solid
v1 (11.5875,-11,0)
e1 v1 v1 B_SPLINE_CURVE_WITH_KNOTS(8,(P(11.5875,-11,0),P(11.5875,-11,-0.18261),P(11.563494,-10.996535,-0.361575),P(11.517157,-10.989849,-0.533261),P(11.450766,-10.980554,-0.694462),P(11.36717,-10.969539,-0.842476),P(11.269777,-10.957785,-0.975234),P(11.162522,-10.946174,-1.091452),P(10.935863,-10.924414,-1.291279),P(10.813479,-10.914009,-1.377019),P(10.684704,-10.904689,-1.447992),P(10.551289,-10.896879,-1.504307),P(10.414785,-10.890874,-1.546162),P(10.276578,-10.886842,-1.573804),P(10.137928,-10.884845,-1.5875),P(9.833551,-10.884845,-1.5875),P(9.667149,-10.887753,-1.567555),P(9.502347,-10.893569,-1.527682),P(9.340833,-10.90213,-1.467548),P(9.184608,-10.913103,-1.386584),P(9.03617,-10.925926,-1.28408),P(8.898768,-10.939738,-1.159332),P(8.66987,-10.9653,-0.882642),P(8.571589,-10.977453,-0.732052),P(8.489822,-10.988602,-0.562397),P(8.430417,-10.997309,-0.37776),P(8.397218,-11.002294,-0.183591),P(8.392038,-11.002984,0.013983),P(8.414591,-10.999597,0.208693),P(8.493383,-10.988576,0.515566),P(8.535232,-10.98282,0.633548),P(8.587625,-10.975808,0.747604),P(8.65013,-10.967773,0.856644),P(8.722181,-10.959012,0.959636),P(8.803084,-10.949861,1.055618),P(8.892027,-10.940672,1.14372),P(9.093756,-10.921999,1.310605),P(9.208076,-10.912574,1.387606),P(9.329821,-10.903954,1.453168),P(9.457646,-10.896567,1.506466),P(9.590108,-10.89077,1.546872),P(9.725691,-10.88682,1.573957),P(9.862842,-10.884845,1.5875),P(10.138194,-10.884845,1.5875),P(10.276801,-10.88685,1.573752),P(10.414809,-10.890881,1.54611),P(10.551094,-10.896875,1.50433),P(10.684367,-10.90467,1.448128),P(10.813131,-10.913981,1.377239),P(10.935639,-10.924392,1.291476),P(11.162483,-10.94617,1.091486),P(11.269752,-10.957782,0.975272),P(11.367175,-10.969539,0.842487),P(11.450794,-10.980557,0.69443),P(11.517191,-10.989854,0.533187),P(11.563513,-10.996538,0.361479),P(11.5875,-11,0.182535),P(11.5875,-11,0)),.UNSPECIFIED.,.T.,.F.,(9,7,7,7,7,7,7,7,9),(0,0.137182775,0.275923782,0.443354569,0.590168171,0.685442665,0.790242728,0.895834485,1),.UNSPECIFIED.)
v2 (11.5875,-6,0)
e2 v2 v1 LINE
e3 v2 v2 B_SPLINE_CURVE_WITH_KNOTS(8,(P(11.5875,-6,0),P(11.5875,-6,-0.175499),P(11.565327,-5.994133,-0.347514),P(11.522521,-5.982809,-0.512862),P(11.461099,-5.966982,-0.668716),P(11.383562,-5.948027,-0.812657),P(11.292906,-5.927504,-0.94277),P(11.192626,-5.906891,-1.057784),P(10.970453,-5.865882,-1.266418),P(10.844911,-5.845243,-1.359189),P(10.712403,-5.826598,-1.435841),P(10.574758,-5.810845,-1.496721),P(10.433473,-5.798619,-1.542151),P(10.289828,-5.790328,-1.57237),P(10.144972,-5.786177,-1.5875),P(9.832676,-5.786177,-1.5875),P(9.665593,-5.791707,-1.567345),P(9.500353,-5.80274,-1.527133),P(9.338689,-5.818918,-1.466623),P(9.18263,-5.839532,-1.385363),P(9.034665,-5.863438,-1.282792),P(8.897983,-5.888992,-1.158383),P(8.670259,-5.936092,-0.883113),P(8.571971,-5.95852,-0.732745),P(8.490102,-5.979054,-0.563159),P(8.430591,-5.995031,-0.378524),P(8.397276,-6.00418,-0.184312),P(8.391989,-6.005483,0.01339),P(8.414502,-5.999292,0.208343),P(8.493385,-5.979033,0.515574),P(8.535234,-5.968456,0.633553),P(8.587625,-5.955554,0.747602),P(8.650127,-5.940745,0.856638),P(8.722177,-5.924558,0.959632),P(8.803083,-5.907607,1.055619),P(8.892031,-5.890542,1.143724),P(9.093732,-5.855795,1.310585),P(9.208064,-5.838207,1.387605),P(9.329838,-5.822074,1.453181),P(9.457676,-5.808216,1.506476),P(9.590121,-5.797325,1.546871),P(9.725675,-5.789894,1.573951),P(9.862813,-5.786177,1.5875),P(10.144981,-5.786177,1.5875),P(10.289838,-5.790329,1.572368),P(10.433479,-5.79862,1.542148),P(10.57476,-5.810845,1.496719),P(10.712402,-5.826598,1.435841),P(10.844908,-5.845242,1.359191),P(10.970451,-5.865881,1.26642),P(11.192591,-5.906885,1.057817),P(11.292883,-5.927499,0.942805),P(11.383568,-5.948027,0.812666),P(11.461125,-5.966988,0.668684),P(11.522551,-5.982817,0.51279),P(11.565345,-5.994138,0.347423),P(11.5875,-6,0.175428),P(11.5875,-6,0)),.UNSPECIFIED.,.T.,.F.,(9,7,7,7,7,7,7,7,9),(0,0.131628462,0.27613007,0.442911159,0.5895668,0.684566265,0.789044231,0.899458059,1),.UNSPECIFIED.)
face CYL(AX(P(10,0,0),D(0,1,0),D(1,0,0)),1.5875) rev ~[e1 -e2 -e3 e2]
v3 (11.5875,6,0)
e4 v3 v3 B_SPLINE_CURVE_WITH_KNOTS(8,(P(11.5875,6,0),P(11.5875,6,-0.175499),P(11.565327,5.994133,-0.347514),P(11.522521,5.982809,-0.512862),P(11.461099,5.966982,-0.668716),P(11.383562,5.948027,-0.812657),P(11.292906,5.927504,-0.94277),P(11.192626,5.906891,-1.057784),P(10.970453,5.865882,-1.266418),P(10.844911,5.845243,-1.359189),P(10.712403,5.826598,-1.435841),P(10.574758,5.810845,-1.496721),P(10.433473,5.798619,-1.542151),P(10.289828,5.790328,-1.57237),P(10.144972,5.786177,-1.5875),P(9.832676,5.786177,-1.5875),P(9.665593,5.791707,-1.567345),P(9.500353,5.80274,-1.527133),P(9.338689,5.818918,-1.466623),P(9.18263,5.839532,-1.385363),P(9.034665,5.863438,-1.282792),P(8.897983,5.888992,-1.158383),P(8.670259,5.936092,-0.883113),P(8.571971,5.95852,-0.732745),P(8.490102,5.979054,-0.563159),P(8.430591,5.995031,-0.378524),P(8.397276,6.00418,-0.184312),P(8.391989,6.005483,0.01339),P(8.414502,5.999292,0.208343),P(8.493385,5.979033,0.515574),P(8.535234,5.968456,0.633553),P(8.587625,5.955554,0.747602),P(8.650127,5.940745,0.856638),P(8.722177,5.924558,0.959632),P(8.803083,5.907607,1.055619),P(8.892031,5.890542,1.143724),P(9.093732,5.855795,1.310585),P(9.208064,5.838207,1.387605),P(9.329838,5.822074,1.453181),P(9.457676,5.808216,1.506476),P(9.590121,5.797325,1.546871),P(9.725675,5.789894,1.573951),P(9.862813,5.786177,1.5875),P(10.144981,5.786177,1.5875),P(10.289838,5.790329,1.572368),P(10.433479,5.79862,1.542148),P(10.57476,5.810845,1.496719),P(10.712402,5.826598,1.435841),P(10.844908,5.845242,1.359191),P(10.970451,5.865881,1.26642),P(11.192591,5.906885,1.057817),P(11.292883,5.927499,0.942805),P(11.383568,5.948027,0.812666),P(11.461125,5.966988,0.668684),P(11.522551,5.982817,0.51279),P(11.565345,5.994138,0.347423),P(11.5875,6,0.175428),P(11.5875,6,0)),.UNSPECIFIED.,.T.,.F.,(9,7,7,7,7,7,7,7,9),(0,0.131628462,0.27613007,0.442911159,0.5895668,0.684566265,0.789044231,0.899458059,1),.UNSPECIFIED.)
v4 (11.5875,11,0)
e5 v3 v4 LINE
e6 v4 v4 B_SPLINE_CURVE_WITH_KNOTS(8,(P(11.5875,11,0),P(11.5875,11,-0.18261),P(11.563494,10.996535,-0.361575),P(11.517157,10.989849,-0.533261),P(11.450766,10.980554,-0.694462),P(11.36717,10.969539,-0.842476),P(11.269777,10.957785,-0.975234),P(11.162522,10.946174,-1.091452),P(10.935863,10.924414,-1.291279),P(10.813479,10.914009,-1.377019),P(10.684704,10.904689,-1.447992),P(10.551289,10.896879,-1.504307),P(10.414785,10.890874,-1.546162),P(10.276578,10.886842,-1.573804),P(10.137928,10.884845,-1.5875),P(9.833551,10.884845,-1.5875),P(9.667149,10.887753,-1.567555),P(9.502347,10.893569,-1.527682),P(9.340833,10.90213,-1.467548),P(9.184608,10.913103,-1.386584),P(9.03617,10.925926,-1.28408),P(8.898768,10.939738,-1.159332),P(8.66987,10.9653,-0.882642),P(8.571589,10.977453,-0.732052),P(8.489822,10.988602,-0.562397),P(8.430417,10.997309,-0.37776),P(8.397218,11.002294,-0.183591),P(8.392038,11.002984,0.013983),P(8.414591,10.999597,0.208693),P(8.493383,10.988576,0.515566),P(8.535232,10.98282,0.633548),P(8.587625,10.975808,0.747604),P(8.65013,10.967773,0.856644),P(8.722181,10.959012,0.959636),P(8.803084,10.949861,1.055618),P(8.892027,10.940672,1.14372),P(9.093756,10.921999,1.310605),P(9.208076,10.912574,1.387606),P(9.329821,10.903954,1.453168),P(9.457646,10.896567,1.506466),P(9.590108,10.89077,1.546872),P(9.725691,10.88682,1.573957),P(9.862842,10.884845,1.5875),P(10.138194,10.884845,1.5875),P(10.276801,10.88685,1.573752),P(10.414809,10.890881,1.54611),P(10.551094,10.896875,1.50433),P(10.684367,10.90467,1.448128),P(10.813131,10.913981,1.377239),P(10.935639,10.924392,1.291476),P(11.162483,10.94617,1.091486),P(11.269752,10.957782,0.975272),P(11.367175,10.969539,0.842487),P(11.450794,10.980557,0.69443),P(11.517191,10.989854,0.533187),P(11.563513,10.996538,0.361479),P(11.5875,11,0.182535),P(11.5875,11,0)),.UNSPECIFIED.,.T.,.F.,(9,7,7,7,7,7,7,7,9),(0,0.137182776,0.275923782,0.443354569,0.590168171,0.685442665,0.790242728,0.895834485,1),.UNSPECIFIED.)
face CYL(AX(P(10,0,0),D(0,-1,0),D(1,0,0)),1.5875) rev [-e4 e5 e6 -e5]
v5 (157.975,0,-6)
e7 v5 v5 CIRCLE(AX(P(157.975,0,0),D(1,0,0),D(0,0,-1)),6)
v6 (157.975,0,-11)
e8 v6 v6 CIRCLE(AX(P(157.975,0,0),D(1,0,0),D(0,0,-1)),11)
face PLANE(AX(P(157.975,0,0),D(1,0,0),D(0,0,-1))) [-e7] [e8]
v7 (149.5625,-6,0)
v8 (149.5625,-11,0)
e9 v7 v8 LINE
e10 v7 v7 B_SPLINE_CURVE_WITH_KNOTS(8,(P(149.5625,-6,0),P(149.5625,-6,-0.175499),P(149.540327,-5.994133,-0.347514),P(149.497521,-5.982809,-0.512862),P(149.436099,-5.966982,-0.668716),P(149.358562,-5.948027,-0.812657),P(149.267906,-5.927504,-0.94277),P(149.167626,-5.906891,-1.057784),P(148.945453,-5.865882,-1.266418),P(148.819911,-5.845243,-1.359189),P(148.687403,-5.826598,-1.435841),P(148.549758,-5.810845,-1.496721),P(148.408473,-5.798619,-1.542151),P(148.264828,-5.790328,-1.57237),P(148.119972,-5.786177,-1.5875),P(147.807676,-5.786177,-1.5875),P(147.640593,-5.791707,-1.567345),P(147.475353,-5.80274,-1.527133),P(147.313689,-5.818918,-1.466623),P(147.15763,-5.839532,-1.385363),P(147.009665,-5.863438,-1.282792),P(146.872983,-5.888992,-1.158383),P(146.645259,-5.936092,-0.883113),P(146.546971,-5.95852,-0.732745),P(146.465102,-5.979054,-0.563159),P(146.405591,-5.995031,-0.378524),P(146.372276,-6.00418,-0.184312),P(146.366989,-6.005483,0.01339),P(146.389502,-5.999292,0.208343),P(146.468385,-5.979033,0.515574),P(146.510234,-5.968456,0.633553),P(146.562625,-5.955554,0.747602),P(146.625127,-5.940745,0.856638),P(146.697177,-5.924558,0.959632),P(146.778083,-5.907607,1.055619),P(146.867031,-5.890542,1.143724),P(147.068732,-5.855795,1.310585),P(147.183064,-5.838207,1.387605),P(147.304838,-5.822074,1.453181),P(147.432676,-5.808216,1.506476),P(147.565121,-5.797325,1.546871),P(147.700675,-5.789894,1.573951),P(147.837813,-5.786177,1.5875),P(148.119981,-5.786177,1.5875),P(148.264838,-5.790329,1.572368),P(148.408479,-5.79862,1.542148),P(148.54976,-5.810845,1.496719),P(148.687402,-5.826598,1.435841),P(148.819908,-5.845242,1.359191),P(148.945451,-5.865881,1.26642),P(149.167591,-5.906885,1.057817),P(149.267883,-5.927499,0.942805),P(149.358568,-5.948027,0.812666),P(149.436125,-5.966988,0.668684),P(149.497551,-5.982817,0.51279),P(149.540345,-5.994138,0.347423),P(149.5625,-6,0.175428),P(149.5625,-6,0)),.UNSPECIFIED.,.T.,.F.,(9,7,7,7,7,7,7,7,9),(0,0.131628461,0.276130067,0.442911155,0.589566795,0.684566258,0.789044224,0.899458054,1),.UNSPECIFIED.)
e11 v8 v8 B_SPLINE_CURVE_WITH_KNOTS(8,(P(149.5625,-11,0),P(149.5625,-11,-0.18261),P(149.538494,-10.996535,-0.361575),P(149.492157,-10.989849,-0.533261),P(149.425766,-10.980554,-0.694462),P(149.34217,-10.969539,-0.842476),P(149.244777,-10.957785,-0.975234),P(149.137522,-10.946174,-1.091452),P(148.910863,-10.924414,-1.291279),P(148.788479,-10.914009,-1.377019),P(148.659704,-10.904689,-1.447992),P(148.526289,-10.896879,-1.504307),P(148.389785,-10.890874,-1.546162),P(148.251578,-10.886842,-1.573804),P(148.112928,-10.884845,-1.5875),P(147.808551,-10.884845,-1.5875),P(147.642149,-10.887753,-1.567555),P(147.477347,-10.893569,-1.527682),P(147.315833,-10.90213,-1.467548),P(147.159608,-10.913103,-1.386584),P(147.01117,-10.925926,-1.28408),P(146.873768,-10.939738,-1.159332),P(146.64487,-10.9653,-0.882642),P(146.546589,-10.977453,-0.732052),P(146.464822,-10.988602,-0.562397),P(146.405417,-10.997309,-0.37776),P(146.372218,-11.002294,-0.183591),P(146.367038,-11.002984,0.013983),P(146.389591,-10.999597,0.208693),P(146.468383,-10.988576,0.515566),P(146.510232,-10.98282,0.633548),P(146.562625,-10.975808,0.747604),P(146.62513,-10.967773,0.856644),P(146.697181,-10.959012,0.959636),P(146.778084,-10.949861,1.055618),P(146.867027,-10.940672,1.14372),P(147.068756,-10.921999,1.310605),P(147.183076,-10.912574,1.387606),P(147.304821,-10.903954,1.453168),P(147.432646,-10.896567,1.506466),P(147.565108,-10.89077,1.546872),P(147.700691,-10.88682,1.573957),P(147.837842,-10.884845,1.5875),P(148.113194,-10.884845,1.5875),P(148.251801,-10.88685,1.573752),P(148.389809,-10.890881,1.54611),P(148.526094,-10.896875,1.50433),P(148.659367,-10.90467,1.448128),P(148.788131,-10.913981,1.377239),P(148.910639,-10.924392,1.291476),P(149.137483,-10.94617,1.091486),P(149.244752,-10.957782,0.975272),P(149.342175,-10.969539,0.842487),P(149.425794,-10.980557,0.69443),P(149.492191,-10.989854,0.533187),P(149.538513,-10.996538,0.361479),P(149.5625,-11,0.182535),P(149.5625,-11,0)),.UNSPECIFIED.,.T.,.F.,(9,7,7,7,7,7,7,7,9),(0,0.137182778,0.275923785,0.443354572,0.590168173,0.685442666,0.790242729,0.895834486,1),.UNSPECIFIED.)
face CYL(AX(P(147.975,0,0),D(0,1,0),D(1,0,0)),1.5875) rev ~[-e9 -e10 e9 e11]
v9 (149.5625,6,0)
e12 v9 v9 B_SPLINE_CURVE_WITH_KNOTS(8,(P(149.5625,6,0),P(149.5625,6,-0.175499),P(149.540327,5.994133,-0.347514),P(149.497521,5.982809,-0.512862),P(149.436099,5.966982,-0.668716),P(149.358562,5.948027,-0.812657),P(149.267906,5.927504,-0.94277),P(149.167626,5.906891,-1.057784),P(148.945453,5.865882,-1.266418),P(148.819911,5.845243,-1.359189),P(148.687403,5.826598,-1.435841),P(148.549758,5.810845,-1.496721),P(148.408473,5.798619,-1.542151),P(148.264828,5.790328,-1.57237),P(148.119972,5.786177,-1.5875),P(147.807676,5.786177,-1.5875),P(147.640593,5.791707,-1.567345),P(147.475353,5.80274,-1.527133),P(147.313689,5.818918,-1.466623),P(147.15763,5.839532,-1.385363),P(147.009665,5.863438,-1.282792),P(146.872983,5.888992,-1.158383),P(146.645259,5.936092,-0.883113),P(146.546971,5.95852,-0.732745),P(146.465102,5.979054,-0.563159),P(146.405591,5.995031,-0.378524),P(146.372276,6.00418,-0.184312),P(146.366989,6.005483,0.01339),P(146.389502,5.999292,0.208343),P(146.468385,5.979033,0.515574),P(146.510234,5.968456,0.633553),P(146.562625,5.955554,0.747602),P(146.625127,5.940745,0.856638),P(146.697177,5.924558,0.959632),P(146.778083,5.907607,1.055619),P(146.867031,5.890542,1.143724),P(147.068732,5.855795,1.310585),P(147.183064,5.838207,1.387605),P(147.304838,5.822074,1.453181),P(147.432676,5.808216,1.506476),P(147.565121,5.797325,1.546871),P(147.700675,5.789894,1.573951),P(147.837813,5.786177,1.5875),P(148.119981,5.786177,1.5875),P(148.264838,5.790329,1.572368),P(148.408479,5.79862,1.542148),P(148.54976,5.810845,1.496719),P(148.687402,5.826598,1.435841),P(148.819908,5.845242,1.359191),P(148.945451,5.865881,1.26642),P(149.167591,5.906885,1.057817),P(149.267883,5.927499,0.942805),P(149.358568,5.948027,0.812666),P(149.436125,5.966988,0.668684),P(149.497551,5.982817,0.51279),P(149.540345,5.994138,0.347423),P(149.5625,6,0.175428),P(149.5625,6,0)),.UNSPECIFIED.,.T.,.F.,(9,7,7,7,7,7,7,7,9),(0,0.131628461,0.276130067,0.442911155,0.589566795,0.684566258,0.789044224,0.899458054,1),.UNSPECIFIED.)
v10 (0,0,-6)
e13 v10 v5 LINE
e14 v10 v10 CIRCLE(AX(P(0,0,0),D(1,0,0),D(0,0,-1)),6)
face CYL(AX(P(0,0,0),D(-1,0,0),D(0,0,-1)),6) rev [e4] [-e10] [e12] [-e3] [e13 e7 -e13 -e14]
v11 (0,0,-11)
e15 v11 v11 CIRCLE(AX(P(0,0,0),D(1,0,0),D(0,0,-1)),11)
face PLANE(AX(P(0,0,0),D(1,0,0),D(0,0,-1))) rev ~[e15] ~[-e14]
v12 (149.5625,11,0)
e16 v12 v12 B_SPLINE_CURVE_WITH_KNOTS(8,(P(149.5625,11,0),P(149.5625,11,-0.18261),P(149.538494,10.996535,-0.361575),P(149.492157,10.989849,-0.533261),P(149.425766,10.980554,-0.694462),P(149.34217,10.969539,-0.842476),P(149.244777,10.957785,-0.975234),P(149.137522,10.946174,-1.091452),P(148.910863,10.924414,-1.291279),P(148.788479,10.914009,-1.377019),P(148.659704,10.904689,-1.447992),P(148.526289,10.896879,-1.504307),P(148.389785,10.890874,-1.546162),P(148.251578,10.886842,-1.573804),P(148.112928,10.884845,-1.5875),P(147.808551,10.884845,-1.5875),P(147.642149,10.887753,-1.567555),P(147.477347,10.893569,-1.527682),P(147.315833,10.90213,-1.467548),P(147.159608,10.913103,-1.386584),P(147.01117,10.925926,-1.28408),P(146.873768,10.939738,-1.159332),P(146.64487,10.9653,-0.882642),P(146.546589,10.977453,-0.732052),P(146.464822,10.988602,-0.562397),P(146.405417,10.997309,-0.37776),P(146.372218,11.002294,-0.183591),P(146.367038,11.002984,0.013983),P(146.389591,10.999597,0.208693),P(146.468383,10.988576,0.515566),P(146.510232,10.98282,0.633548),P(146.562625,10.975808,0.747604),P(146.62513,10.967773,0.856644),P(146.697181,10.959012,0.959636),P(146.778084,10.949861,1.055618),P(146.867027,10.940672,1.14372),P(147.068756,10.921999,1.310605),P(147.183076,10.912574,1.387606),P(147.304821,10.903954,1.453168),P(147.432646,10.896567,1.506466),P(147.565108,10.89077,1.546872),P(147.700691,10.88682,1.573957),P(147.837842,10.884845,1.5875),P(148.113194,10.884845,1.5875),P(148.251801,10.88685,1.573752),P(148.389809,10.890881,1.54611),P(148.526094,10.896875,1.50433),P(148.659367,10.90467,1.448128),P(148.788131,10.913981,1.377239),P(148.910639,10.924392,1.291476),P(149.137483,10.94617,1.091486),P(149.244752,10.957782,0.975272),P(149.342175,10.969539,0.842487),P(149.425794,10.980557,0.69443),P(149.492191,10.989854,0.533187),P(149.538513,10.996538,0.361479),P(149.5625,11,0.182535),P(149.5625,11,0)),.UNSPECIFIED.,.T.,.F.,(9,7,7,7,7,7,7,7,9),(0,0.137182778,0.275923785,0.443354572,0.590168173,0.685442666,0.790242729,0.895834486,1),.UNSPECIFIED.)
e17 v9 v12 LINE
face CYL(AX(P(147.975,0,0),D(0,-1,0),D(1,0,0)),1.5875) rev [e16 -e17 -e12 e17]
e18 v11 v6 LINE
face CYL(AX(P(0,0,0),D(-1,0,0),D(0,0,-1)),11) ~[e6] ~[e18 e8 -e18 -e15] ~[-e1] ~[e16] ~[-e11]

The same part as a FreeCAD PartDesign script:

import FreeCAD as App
import Part
import Sketcher

V = App.Vector

doc = App.newDocument("Part")
params = doc.addObject("Spreadsheet::Sheet", "Params")
for row, (alias, value) in enumerate([
    ("sketch1_diameter", "22 mm"),
    ("sketch1_diameter2", "12 mm"),
    ("pad1_length", "157.975 mm"),
], start=1):
    params.set(f"A{row}", alias)
    params.set(f"B{row}", "=" + value)
    params.setAlias(f"B{row}", alias)

body = doc.addObject("PartDesign::Body", "Body")

sketch1 = body.newObject("Sketcher::SketchObject", "Sketch")
sketch1.AttachmentSupport = (doc.getObject("YZ_Plane"), [""])
sketch1.MapMode = "FlatFace"
sketch1.addGeometry([
    Part.Circle(V(0, 0, 0), V(0, 0, 1), 11),
    Part.Circle(V(0, 0, 0), V(0, 0, 1), 6),
], False)
sketch1.addConstraint([
    Sketcher.Constraint("Coincident", 0, 3, -1, 1),
    Sketcher.Constraint("Coincident", 1, 3, -1, 1),
    Sketcher.Constraint("Diameter", 0, 22.0),
    Sketcher.Constraint("Diameter", 1, 12.0),
])
sketch1.setExpression("Constraints[2]", "Params.sketch1_diameter")
sketch1.setExpression("Constraints[3]", "Params.sketch1_diameter2")
pad1 = body.newObject("PartDesign::Pad", "Pad")
pad1.Profile = sketch1
pad1.setExpression("Length", "Params.pad1_length")

sketch2 = body.newObject("Sketcher::SketchObject", "Sketch001")
sketch2.AttachmentSupport = (doc.getObject("XZ_Plane"), [""])
sketch2.MapMode = "FlatFace"
sketch2.addGeometry([
    Part.Circle(V(10, 0, 0), V(0, 0, 1), 1.6),
    Part.Circle(V(148, 0, 0), V(0, 0, 1), 1.6),
], False)
sketch2.addConstraint([
    Sketcher.Constraint("Equal", 0, 1),
    Sketcher.Constraint("PointOnObject", 0, 3, -1),
    Sketcher.Constraint("PointOnObject", 1, 3, -1),
    Sketcher.Constraint("Diameter", 0, 3.175),
    Sketcher.Constraint("DistanceX", -1, 1, 0, 3, 10.0),
    Sketcher.Constraint("DistanceX", -1, 1, 1, 3, 147.975),
])
pocket1 = body.newObject("PartDesign::Pocket", "Pocket")
pocket1.Profile = sketch2
pocket1.Type = "ThroughAll"
pocket1.Midplane = True

doc.recompute()
